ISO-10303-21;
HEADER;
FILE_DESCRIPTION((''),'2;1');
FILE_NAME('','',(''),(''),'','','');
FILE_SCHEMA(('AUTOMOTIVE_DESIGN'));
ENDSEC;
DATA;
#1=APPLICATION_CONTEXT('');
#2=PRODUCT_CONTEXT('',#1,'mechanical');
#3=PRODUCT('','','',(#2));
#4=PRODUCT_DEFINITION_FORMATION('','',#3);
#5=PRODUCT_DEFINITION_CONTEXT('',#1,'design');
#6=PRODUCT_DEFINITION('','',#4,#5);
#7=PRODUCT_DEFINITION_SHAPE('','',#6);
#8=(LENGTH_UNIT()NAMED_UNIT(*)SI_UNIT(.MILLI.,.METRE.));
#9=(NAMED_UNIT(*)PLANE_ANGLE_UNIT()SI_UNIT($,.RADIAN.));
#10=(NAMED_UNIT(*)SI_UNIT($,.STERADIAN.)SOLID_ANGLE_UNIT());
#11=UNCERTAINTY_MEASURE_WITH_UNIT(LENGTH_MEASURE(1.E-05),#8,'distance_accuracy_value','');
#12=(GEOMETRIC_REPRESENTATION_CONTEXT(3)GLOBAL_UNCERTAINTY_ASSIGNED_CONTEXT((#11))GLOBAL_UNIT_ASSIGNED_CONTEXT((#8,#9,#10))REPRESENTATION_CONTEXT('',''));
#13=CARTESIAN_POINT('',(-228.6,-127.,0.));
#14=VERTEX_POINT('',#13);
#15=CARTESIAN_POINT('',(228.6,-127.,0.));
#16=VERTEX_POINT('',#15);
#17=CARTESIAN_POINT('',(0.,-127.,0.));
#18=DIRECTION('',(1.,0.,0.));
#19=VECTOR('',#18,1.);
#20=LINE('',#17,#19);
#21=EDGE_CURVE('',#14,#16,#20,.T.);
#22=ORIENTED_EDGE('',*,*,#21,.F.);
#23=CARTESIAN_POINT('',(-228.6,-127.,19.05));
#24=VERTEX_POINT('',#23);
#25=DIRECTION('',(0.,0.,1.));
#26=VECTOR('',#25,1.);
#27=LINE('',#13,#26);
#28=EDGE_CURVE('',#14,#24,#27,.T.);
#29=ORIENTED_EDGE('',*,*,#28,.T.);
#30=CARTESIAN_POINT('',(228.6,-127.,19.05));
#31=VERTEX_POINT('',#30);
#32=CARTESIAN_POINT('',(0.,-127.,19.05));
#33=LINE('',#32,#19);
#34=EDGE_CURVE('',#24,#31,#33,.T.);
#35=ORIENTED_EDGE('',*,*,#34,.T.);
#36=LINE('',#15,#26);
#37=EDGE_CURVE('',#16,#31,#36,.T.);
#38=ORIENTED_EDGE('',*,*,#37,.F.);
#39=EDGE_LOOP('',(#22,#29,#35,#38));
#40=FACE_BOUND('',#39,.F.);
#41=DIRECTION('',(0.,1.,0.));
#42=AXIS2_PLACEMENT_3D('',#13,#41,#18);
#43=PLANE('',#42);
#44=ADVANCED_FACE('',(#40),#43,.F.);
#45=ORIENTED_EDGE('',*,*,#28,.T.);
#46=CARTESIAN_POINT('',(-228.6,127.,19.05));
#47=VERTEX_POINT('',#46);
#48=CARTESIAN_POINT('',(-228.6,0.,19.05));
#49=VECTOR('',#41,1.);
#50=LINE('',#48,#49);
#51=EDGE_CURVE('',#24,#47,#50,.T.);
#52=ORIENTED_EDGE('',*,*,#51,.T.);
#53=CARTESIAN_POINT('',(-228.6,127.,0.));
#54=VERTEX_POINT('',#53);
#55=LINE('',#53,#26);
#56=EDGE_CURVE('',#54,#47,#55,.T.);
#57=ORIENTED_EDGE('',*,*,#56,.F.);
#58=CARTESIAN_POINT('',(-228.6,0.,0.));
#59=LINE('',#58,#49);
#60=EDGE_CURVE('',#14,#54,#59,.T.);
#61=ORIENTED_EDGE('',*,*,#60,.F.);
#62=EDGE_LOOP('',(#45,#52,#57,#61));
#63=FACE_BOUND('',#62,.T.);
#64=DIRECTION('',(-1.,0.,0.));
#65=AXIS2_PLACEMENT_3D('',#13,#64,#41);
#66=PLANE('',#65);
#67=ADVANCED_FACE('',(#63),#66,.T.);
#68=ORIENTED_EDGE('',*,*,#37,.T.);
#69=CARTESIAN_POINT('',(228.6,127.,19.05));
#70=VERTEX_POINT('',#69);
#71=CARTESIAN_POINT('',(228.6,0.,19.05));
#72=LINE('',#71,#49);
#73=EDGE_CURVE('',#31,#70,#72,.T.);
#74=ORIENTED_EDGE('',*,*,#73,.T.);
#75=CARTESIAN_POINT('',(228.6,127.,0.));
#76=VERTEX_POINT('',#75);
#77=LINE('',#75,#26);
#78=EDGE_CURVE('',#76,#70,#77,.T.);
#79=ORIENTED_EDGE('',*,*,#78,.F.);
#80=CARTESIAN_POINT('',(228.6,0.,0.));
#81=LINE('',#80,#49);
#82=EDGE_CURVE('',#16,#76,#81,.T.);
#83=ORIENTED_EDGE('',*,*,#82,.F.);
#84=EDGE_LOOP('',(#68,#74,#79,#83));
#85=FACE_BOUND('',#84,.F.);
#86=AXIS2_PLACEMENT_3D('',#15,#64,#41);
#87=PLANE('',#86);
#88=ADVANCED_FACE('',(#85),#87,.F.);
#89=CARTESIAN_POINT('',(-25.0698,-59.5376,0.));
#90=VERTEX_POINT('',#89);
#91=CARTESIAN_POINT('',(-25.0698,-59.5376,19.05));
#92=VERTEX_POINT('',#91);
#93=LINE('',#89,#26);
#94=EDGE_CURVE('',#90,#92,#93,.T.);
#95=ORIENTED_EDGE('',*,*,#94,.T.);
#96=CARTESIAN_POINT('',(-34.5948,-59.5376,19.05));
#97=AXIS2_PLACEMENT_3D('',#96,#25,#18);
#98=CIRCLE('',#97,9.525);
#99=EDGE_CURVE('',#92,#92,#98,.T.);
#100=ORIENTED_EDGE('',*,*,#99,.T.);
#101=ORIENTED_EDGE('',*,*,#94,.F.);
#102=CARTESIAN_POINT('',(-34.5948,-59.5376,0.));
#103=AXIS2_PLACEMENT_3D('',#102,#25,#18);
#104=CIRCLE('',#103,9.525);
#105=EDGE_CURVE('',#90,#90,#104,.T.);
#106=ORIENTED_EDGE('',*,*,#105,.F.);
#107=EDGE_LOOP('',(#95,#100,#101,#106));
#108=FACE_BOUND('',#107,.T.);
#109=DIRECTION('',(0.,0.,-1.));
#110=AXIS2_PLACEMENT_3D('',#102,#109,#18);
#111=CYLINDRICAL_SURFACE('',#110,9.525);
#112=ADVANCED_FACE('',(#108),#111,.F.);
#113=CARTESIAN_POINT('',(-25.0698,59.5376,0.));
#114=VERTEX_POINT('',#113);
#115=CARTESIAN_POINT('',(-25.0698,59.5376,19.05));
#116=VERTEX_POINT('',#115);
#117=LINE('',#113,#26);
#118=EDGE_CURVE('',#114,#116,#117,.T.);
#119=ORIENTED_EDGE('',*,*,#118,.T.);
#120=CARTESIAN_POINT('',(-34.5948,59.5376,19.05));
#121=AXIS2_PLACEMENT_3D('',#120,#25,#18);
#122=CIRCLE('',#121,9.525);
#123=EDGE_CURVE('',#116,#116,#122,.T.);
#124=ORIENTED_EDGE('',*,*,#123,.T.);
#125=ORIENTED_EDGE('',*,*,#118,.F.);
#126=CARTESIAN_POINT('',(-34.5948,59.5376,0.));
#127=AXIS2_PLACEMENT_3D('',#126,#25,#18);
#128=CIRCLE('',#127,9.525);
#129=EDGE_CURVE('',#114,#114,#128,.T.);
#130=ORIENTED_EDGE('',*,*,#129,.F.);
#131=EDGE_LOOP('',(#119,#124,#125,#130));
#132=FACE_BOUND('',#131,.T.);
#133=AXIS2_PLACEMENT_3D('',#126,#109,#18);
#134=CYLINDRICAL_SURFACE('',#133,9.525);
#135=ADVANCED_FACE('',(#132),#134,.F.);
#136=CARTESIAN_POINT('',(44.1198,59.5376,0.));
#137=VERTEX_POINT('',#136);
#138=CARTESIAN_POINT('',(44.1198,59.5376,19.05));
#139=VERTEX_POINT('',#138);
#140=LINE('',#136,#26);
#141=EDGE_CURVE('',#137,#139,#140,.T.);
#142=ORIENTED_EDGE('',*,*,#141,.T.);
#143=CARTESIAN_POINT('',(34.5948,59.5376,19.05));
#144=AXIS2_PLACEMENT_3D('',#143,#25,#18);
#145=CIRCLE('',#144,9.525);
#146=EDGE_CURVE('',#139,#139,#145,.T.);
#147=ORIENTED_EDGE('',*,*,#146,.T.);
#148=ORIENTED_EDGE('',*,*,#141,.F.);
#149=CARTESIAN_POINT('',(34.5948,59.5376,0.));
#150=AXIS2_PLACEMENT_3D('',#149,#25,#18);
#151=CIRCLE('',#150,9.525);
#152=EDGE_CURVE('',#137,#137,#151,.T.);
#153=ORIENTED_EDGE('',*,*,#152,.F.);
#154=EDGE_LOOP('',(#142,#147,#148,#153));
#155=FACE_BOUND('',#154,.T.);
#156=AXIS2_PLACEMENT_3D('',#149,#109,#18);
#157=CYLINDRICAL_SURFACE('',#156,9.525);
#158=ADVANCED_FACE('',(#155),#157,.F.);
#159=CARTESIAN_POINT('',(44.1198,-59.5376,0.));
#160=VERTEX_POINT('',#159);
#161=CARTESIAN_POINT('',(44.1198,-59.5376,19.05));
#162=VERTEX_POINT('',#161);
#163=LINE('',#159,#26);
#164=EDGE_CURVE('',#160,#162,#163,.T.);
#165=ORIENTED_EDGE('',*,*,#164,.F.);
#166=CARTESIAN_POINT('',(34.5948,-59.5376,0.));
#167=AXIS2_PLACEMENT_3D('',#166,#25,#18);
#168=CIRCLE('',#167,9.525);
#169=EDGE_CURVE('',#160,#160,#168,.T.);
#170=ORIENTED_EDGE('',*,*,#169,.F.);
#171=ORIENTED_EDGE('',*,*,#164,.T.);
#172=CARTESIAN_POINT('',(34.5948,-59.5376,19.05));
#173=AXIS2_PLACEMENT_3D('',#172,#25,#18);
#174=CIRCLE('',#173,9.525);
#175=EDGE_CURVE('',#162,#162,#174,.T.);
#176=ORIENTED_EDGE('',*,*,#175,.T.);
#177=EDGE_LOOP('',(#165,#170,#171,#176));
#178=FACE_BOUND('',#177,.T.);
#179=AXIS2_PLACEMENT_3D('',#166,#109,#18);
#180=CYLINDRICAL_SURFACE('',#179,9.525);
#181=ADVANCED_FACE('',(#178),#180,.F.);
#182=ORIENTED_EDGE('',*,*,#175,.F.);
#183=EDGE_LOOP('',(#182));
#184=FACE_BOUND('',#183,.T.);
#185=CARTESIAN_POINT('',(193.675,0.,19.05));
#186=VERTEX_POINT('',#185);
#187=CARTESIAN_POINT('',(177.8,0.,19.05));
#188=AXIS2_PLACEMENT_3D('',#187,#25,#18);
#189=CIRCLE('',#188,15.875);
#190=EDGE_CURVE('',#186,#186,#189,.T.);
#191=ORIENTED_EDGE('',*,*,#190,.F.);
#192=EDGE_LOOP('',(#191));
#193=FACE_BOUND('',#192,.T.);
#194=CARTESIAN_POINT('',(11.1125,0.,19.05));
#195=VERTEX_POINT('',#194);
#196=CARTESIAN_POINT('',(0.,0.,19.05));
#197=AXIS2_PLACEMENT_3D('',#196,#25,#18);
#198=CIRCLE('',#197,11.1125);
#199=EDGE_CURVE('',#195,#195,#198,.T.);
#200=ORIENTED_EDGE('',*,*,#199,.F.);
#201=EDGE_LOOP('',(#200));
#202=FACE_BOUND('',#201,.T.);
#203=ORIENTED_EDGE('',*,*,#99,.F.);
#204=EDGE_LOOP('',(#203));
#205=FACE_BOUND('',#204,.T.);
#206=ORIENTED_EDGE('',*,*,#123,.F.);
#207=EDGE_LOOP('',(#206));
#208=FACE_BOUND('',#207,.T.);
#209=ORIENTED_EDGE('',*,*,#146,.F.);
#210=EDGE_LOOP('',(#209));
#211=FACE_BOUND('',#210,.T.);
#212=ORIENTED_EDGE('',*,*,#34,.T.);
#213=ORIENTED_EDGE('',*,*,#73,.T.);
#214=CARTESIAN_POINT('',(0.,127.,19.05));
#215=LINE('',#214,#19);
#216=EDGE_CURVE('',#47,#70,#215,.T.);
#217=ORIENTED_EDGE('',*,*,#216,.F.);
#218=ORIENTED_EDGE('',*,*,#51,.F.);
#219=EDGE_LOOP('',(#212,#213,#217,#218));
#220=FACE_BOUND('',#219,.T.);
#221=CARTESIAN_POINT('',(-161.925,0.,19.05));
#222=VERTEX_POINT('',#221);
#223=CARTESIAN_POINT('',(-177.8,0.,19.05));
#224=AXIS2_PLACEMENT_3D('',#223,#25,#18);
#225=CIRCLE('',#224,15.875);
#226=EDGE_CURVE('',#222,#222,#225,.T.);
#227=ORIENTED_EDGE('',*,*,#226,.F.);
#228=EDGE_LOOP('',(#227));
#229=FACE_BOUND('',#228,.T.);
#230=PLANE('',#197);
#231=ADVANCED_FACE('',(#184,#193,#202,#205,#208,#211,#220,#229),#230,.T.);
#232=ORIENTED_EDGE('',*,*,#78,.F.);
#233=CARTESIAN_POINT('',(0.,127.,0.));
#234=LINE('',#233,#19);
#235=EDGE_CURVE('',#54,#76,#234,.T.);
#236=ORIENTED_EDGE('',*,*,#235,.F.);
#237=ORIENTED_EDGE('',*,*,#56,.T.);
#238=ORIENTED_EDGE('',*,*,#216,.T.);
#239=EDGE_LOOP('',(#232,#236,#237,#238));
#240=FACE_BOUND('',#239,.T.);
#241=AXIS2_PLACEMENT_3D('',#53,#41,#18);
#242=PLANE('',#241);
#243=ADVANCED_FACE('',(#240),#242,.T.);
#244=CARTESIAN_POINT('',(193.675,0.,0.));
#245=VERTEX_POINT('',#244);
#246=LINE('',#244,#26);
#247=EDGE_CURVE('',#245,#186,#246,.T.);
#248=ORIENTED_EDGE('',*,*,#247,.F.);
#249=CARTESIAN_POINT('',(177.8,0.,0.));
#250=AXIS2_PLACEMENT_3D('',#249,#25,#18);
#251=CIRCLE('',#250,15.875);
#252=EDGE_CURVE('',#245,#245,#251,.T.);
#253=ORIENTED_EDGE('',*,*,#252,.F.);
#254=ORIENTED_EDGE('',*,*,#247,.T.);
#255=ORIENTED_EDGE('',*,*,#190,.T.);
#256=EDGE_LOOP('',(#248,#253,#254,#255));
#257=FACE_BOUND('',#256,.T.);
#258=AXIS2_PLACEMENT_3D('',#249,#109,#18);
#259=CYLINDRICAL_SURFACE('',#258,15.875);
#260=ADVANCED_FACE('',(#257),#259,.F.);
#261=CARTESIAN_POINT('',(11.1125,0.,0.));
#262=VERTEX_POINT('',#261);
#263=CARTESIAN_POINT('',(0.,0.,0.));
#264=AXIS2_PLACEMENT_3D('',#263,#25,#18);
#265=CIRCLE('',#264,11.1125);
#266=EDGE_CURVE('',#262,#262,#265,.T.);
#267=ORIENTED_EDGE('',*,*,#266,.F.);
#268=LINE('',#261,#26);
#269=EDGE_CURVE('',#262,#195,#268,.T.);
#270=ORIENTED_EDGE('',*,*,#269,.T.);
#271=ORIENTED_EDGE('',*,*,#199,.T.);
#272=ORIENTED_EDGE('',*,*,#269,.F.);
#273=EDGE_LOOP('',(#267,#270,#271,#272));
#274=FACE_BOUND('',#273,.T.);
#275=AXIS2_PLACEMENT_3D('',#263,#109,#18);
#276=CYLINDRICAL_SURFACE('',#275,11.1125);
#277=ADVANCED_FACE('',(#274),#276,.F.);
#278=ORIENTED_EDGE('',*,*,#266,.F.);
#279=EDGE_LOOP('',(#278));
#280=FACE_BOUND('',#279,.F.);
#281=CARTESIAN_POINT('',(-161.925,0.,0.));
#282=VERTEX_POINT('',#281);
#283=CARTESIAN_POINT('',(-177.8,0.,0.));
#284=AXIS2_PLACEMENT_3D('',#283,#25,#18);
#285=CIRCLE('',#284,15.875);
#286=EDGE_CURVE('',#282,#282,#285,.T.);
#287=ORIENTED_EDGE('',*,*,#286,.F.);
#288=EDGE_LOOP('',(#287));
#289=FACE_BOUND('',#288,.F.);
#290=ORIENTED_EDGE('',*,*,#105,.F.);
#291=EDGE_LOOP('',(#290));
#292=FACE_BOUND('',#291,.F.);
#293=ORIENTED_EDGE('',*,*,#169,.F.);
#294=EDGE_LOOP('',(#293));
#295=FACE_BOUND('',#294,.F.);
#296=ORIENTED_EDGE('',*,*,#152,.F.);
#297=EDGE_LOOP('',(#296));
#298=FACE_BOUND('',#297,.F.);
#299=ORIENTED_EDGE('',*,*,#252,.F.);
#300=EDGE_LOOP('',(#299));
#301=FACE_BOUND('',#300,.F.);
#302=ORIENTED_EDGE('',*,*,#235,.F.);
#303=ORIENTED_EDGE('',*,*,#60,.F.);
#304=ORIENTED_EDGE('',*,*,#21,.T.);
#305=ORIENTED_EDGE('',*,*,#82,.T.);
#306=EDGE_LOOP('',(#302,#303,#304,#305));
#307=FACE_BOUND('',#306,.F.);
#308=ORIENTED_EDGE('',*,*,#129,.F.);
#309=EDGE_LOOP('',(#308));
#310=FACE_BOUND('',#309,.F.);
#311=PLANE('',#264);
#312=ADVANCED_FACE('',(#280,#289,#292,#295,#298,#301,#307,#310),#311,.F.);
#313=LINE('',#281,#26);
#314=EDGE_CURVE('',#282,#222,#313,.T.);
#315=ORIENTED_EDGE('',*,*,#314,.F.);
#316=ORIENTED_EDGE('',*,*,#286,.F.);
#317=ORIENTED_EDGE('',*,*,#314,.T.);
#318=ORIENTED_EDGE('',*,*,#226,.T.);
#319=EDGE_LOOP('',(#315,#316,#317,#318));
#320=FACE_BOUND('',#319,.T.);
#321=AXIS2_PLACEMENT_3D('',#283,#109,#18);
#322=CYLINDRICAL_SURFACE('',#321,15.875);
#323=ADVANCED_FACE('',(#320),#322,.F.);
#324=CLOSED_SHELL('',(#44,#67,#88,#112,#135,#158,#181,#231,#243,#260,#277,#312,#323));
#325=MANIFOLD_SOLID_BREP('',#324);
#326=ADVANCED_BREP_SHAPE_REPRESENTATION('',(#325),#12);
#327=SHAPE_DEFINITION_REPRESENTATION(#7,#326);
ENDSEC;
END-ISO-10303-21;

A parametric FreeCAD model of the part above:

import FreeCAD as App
import Part
import Sketcher

V = App.Vector
Q = App.Units.Quantity


def add_polygon(sketch, points):
    """Adds a closed chain of lines whose ends are joined by coincident constraints."""
    first, n = sketch.GeometryCount, len(points)
    for a, b in zip(points, points[1:] + points[:1]):
        sketch.addGeometry(Part.LineSegment(App.Vector(*a, 0), App.Vector(*b, 0)), False)
    for i in range(n):
        sketch.addConstraint(Sketcher.Constraint("Coincident", first + i, 2, first + (i + 1) % n, 1))

doc = App.newDocument("Part")
body = doc.addObject("PartDesign::Body", "Body")

# Sketch on XY plane
sketch1 = doc.addObject("Sketcher::SketchObject", "Sketch")
body.addObject(sketch1)
sketch1.AttachmentSupport = (doc.XY_Plane, [""])
sketch1.MapMode = "FlatFace"
add_polygon(sketch1, [(-228.6, 127), (-228.6, -127), (228.6, -127), (228.6, 127)])  # lines 0-3
sketch1.addGeometry(Part.Circle(V(-34.5948, -59.5376, 0), V(0, 0, 1), 9.525), False)  # 4
sketch1.addGeometry(Part.Circle(V(34.5948, -59.5376, 0), V(0, 0, 1), 9.525), False)  # 5
sketch1.addGeometry(Part.Circle(V(-177.8, 0, 0), V(0, 0, 1), 15.875), False)  # 6
sketch1.addGeometry(Part.Circle(V(-34.5948, 59.5376, 0), V(0, 0, 1), 9.525), False)  # 7
sketch1.addGeometry(Part.Circle(V(0, 0, 0), V(0, 0, 1), 11.1125), False)  # 8
sketch1.addGeometry(Part.Circle(V(177.8, 0, 0), V(0, 0, 1), 15.875), False)  # 9
sketch1.addGeometry(Part.Circle(V(34.5948, 59.5376, 0), V(0, 0, 1), 9.525), False)  # 10
sketch1.addConstraint([
    Sketcher.Constraint("Vertical", 0),
    Sketcher.Constraint("Horizontal", 1),
    Sketcher.Constraint("Vertical", 2),
    Sketcher.Constraint("Horizontal", 3),
    Sketcher.Constraint("Coincident", 8, 3, -1, 1),
    Sketcher.Constraint("Equal", 4, 5),
    Sketcher.Constraint("Equal", 5, 7),
    Sketcher.Constraint("Equal", 6, 9),
    Sketcher.Constraint("Equal", 7, 10),
    Sketcher.Constraint("Symmetric", 5, 3, 7, 3, -1, 1),
    Sketcher.Constraint("Symmetric", 6, 3, 9, 3, -1, 1),
    Sketcher.Constraint("Symmetric", 4, 3, 10, 3, -1, 1),
    Sketcher.Constraint("Symmetric", 0, 2, 2, 2, -1, 1),
    Sketcher.Constraint("Symmetric", 4, 3, 5, 3, -2),
    Sketcher.Constraint("PointOnObject", 6, 3, -1),
    Sketcher.Constraint("Diameter", 4, Q("0.75 in")),
    Sketcher.Constraint("Diameter", 6, Q("1.25 in")),
    Sketcher.Constraint("DistanceX", 1, 1, 1, 2, Q("18 in")),
    Sketcher.Constraint("DistanceY", 0, 2, 0, 1, Q("10 in")),
    Sketcher.Constraint("Diameter", 8, Q("0.875 in")),
    Sketcher.Constraint("DistanceX", 6, 3, -1, 1, Q("7 in")),
    Sketcher.Constraint("DistanceX", 4, 3, -1, 1, Q("1.362 in")),
    Sketcher.Constraint("DistanceY", 4, 3, -1, 1, Q("2.344 in")),
])
pad1 = doc.addObject("PartDesign::Pad", "Pad")
body.addObject(pad1)
pad1.Profile = sketch1
pad1.Length = Q("0.75 in")

doc.recompute()
